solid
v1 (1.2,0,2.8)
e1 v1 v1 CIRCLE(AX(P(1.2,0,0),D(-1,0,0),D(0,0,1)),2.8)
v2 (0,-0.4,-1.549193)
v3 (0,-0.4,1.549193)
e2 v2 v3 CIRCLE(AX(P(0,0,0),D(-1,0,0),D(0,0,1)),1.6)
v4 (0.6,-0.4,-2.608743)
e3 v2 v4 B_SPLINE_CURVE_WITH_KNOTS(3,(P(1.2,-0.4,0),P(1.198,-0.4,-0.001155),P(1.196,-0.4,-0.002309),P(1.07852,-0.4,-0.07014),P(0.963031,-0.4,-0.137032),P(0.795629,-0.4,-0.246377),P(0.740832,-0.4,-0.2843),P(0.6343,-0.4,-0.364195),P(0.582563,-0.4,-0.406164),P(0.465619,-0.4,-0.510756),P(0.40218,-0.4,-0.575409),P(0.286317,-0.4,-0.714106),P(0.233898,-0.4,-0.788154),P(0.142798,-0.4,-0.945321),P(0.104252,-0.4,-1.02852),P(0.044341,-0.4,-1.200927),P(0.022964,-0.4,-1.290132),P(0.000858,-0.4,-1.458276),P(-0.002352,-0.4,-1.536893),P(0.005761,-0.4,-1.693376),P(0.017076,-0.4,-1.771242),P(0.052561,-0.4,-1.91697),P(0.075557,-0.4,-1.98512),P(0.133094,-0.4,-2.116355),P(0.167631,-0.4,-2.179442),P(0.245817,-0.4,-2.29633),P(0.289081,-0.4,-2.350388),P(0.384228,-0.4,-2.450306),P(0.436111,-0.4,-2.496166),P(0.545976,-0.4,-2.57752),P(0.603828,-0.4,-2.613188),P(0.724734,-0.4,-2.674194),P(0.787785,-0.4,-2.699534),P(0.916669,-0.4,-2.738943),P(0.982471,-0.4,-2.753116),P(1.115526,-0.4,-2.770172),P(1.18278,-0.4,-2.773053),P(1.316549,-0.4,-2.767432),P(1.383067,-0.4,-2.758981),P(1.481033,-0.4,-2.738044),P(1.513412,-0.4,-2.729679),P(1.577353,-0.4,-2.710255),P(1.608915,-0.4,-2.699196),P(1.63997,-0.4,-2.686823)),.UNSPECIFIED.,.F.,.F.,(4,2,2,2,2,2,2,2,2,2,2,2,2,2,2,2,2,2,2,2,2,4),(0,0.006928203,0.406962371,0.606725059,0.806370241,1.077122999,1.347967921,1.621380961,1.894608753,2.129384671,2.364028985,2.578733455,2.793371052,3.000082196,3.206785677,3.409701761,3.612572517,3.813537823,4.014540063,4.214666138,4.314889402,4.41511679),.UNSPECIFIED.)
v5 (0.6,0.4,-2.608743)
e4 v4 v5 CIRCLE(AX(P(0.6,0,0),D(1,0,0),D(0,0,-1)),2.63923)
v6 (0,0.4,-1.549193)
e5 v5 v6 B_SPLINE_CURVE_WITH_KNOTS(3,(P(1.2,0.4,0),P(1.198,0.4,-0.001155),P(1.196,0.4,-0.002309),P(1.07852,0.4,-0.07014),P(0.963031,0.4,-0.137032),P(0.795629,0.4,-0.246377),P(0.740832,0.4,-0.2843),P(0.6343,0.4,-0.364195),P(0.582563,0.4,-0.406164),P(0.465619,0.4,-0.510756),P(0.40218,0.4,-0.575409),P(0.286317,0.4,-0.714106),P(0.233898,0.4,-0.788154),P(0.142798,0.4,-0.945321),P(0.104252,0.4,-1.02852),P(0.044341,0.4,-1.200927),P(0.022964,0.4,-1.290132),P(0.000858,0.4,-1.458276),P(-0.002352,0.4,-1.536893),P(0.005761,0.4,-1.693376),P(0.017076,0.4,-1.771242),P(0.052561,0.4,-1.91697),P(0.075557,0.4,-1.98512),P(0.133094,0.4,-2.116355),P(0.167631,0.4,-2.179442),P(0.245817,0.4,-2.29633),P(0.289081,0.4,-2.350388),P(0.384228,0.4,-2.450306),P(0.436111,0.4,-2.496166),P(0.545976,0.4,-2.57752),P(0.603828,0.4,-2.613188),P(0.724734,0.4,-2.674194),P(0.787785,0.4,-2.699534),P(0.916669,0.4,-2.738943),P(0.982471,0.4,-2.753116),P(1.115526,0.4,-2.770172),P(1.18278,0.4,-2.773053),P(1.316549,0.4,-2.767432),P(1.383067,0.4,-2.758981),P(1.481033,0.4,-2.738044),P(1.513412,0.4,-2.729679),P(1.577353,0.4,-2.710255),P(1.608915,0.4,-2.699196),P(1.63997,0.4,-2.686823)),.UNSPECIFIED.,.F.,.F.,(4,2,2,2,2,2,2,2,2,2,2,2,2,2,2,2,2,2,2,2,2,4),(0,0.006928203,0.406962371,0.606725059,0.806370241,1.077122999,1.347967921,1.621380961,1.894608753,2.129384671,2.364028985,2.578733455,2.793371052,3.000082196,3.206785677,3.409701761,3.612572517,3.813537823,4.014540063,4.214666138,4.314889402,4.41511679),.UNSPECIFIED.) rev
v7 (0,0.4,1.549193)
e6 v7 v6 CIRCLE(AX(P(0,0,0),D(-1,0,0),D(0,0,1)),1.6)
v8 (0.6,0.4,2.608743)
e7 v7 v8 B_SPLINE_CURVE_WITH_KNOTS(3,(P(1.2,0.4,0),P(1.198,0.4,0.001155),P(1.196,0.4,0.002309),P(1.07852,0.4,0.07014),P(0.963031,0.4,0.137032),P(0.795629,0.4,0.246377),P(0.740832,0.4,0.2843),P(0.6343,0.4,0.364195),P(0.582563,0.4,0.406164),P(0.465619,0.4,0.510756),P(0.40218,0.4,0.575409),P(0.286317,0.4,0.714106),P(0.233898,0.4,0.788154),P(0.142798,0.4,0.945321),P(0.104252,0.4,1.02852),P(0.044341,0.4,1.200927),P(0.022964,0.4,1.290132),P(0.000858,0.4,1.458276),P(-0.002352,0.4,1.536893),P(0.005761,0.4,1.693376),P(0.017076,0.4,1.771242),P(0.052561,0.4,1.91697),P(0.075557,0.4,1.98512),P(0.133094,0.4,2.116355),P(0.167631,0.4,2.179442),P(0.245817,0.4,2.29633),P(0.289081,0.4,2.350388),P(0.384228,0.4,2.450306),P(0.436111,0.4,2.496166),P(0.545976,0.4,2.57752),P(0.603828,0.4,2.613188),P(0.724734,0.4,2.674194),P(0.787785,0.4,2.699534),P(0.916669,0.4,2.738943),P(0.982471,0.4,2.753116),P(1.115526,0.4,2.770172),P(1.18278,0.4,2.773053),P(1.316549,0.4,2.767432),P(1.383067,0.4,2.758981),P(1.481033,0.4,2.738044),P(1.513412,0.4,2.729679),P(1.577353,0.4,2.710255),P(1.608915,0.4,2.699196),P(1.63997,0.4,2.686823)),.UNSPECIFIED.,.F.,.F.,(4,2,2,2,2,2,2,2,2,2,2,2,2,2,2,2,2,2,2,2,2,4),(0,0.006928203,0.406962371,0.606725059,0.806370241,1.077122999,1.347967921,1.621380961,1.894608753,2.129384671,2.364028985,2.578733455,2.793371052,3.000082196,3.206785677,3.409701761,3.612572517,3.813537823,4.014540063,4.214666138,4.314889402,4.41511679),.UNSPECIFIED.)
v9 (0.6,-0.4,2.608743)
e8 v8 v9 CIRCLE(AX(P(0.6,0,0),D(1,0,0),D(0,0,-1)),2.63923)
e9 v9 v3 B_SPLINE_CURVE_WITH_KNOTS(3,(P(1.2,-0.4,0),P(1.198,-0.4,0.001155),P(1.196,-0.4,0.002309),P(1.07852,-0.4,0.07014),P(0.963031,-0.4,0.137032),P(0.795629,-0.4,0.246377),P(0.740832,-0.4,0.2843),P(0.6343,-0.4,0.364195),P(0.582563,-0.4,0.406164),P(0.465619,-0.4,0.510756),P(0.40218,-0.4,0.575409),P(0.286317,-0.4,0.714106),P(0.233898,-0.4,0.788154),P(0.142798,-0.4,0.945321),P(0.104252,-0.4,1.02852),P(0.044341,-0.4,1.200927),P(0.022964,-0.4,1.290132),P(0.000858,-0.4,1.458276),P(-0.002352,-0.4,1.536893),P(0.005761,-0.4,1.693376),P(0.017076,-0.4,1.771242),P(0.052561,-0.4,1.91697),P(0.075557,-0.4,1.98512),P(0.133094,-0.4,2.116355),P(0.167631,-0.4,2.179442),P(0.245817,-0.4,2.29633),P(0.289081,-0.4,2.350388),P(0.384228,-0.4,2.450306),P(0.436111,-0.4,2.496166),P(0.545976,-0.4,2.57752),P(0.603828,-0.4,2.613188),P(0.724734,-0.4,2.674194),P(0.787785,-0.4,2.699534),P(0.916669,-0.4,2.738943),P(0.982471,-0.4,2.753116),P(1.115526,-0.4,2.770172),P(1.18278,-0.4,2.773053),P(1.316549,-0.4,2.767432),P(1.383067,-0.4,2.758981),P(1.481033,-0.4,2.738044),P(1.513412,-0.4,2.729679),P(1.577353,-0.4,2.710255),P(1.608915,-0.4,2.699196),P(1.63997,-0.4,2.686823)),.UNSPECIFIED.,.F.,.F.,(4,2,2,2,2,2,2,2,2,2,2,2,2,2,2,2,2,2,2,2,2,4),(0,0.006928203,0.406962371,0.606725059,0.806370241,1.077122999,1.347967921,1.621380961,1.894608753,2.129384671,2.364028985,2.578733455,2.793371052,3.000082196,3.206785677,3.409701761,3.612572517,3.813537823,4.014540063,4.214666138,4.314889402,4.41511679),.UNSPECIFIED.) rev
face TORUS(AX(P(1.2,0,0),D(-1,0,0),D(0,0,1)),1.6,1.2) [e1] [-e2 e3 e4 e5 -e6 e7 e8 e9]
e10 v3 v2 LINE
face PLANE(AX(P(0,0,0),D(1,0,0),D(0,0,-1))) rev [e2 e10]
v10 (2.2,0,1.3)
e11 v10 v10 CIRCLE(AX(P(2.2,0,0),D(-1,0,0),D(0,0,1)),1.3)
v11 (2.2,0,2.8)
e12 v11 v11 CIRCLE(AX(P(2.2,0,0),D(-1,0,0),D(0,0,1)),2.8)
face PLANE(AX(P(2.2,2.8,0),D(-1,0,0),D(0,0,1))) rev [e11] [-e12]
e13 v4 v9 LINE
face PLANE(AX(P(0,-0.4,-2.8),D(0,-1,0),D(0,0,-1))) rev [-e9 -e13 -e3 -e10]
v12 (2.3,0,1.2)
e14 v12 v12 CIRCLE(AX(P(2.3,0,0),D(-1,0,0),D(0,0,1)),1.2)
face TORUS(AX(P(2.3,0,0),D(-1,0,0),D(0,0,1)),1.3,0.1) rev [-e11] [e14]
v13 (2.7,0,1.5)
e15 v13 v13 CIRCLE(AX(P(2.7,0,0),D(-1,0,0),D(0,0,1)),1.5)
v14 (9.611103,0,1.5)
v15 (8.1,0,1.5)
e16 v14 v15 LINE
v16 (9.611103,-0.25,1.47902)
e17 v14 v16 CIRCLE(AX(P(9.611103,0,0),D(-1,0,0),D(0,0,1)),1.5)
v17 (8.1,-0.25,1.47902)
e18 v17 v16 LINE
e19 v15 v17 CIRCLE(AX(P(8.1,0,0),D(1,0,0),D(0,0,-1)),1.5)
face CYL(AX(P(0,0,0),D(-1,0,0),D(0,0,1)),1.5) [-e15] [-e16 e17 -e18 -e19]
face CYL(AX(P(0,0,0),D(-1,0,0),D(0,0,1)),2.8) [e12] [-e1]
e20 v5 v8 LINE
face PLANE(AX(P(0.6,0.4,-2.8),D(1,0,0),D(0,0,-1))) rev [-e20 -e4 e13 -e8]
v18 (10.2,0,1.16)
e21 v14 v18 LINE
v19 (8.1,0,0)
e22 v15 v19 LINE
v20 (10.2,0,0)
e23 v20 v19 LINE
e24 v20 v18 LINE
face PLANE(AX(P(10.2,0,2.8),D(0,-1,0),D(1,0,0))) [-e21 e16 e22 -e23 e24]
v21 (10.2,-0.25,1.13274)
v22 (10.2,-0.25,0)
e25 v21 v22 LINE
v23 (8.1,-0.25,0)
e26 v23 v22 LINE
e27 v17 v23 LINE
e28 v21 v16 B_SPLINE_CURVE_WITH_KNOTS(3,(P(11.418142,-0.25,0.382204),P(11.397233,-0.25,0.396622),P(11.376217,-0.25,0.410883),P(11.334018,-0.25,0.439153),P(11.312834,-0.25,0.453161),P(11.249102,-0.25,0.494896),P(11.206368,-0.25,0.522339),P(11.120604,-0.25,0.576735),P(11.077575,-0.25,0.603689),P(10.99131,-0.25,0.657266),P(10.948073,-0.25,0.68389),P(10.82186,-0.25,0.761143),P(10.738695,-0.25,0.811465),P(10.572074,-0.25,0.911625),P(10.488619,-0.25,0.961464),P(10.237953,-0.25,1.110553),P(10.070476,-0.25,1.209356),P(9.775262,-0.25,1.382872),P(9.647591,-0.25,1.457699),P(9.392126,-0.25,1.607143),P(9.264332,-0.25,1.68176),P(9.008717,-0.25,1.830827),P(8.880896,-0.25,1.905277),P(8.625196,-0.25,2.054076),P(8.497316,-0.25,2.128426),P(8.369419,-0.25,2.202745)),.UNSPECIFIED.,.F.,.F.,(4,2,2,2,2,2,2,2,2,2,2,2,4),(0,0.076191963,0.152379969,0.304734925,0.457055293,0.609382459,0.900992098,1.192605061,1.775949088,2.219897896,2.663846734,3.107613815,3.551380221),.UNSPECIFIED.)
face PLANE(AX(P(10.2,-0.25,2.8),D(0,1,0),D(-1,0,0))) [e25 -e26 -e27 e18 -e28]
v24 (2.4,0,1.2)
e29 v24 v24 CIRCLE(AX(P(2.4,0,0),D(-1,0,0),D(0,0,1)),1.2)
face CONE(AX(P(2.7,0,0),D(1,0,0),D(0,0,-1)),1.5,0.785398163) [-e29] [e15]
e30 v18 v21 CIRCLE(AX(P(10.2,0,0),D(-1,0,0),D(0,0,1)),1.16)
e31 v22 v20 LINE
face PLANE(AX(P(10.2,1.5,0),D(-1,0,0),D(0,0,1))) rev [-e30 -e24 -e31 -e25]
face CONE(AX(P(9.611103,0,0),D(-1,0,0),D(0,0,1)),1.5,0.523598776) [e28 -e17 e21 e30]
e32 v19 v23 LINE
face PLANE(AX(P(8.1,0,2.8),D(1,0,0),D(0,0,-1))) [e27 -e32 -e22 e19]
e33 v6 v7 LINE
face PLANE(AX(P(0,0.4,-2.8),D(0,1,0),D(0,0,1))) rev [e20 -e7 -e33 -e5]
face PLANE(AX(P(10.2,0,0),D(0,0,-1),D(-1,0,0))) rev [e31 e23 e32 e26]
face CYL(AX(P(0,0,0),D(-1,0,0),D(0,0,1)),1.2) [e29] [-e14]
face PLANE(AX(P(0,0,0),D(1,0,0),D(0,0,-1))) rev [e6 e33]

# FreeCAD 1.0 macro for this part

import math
import FreeCAD as App
import Part
import Sketcher
Q = App.Units.Quantity


def add_polygon(sketch, points):
    """Adds a closed chain of lines whose ends are joined by coincident constraints."""
    first, n = sketch.GeometryCount, len(points)
    for a, b in zip(points, points[1:] + points[:1]):
        sketch.addGeometry(Part.LineSegment(App.Vector(*a, 0), App.Vector(*b, 0)), False)
    for i in range(n):
        sketch.addConstraint(Sketcher.Constraint("Coincident", first + i, 2, first + (i + 1) % n, 1))

doc = App.newDocument("Part")
body = doc.addObject("PartDesign::Body", "Body")

# Sketch on XY plane
sketch1 = body.newObject("Sketcher::SketchObject", "Sketch")
sketch1.AttachmentSupport = (doc.getObject("XY_Plane"), [""])
sketch1.MapMode = "FlatFace"
sketch1.addGeometry(Part.LineSegment(App.Vector(0, 1.6, 0), App.Vector(0, 0, 0)), False)
sketch1.addGeometry(Part.LineSegment(App.Vector(0, 0, 0), App.Vector(10.2, 0, 0)), False)
sketch1.addGeometry(Part.LineSegment(App.Vector(10.2, 0, 0), App.Vector(10.2, 1.5, 0)), False)
sketch1.addGeometry(Part.LineSegment(App.Vector(10.2, 1.5, 0), App.Vector(2.7, 1.5, 0)), False)
sketch1.addGeometry(Part.LineSegment(App.Vector(2.7, 1.5, 0), App.Vector(2.4, 1.2, 0)), False)
sketch1.addGeometry(Part.LineSegment(App.Vector(2.4, 1.2, 0), App.Vector(2.3, 1.2, 0)), False)
sketch1.addGeometry(Part.ArcOfCircle(Part.Circle(App.Vector(2.3, 1.3, 0), App.Vector(0, 0, 1), 0.1), math.radians(180), math.radians(270)), False)
sketch1.addGeometry(Part.LineSegment(App.Vector(2.2, 1.3, 0), App.Vector(2.2, 2.8, 0)), False)
sketch1.addGeometry(Part.LineSegment(App.Vector(2.2, 2.8, 0), App.Vector(1.2, 2.8, 0)), False)
sketch1.addGeometry(Part.ArcOfCircle(Part.Circle(App.Vector(1.2, 1.6, 0), App.Vector(0, 0, 1), 1.2), math.radians(90), math.radians(180)), False)
sketch1.addConstraint(Sketcher.Constraint("Coincident", 0, 2, 1, 1))
sketch1.addConstraint(Sketcher.Constraint("Coincident", 1, 2, 2, 1))
sketch1.addConstraint(Sketcher.Constraint("Coincident", 2, 2, 3, 1))
sketch1.addConstraint(Sketcher.Constraint("Coincident", 3, 2, 4, 1))
sketch1.addConstraint(Sketcher.Constraint("Coincident", 4, 2, 5, 1))
sketch1.addConstraint(Sketcher.Constraint("Tangent", 5, 2, 6, 2))
sketch1.addConstraint(Sketcher.Constraint("Tangent", 6, 1, 7, 1))
sketch1.addConstraint(Sketcher.Constraint("Coincident", 7, 2, 8, 1))
sketch1.addConstraint(Sketcher.Constraint("Tangent", 8, 2, 9, 1))
sketch1.addConstraint(Sketcher.Constraint("Tangent", 9, 2, 0, 1))
sketch1.addConstraint(Sketcher.Constraint("Vertical", 0))
sketch1.addConstraint(Sketcher.Constraint("Horizontal", 1))
sketch1.addConstraint(Sketcher.Constraint("Vertical", 2))
sketch1.addConstraint(Sketcher.Constraint("Horizontal", 3))
sketch1.addConstraint(Sketcher.Constraint("Horizontal", 5))
sketch1.addConstraint(Sketcher.Constraint("Vertical", 7))
sketch1.addConstraint(Sketcher.Constraint("Horizontal", 8))
sketch1.addConstraint(Sketcher.Constraint("Coincident", 0, 2, -1, 1))
sketch1.addConstraint(Sketcher.Constraint("Equal", 2, 7))
sketch1.addConstraint(Sketcher.Constraint("Radius", 6, Q("0.1 mm")))
sketch1.addConstraint(Sketcher.Constraint("Radius", 9, Q("1.2 mm")))
sketch1.addConstraint(Sketcher.Constraint("DistanceX", 8, 2, 8, 1, Q("1 mm")))
sketch1.addConstraint(Sketcher.Constraint("Angle", 4, Q("-135 deg")))
sketch1.addConstraint(Sketcher.Constraint("DistanceX", 1, 1, 1, 2, Q("10.2 mm")))
sketch1.addConstraint(Sketcher.Constraint("DistanceX", 3, 2, 3, 1, Q("7.5 mm")))
sketch1.addConstraint(Sketcher.Constraint("DistanceX", 5, 2, 5, 1, Q("0.1 mm")))
sketch1.addConstraint(Sketcher.Constraint("DistanceY", 0, 2, 0, 1, Q("1.6 mm")))
revolution = body.newObject("PartDesign::Revolution", "Revolution")
revolution.Profile = sketch1
revolution.ReferenceAxis = (sketch1, ["H_Axis"])
revolution.Angle = 360

# Sketch on XY plane
sketch2 = body.newObject("Sketcher::SketchObject", "Sketch001")
sketch2.AttachmentSupport = (doc.getObject("XY_Plane"), [""])
sketch2.MapMode = "FlatFace"
add_polygon(sketch2, [(0, 0.4), (0, -0.4), (0.6, -0.4), (0.6, 0.4)])  # lines 0-3
sketch2.addConstraint(Sketcher.Constraint("Vertical", 0))
sketch2.addConstraint(Sketcher.Constraint("Horizontal", 1))
sketch2.addConstraint(Sketcher.Constraint("Vertical", 2))
sketch2.addConstraint(Sketcher.Constraint("Horizontal", 3))
sketch2.addConstraint(Sketcher.Constraint("Symmetric", 0, 2, 3, 2, -1, 1))
sketch2.addConstraint(Sketcher.Constraint("DistanceX", 1, 1, 1, 2, Q("0.6 mm")))
sketch2.addConstraint(Sketcher.Constraint("DistanceY", 0, 2, 0, 1, Q("0.8 mm")))
pocket1 = body.newObject("PartDesign::Pocket", "Pocket")
pocket1.Profile = sketch2
pocket1.Type = "ThroughAll"
pocket1.Midplane = True

# Sketch on XY plane
sketch3 = body.newObject("Sketcher::SketchObject", "Sketch002")
sketch3.AttachmentSupport = (doc.getObject("XY_Plane"), [""])
sketch3.MapMode = "FlatFace"
add_polygon(sketch3, [(10.2, 0), (10.7, 0), (10.7, 2), (9.6, 2), (9.6, 1.5), (10.2, 1.2)])  # lines 0-5
sketch3.addConstraint(Sketcher.Constraint("Horizontal", 0))
sketch3.addConstraint(Sketcher.Constraint("Vertical", 1))
sketch3.addConstraint(Sketcher.Constraint("Horizontal", 2))
sketch3.addConstraint(Sketcher.Constraint("Vertical", 3))
sketch3.addConstraint(Sketcher.Constraint("Vertical", 5))
sketch3.addConstraint(Sketcher.Constraint("PointOnObject", 0, 2, -1))
sketch3.addConstraint(Sketcher.Constraint("Equal", 0, 3))
sketch3.addConstraint(Sketcher.Constraint("Angle", 4, Q("-30 deg")))
sketch3.addConstraint(Sketcher.Constraint("DistanceY", 5, 2, 5, 1, Q("1.16 mm")))
sketch3.addConstraint(Sketcher.Constraint("DistanceY", -1, 1, 3, 2, Q("1.5 mm")))
sketch3.addConstraint(Sketcher.Constraint("DistanceX", -1, 1, 4, 2, Q("10.2 mm")))
sketch3.addConstraint(Sketcher.Constraint("DistanceX", 0, 1, 0, 2, Q("0.508 mm")))
groove = body.newObject("PartDesign::Groove", "Groove")
groove.Profile = sketch3
groove.ReferenceAxis = (sketch3, ["H_Axis"])
groove.Angle = 360

# Sketch on XY plane
sketch4 = body.newObject("Sketcher::SketchObject", "Sketch003")
sketch4.AttachmentSupport = (doc.getObject("XY_Plane"), [""])
sketch4.MapMode = "FlatFace"
add_polygon(sketch4, [(8.1, 0), (8.1, -0.25), (10.2, -0.25), (10.2, 0)])  # lines 0-3
sketch4.addConstraint(Sketcher.Constraint("Vertical", 0))
sketch4.addConstraint(Sketcher.Constraint("Horizontal", 1))
sketch4.addConstraint(Sketcher.Constraint("Vertical", 2))
sketch4.addConstraint(Sketcher.Constraint("Horizontal", 3))
sketch4.addConstraint(Sketcher.Constraint("PointOnObject", 2, 2, -1))
sketch4.addConstraint(Sketcher.Constraint("DistanceX", 1, 1, 1, 2, Q("2.1 mm")))
sketch4.addConstraint(Sketcher.Constraint("DistanceY", 0, 2, 0, 1, Q("0.25 mm")))
sketch4.addConstraint(Sketcher.Constraint("DistanceX", -1, 1, 0, 2, Q("8.1 mm")))
pocket2 = body.newObject("PartDesign::Pocket", "Pocket001")
pocket2.Profile = sketch4
pocket2.Type = "ThroughAll"
pocket2.Reversed = True

doc.recompute()
